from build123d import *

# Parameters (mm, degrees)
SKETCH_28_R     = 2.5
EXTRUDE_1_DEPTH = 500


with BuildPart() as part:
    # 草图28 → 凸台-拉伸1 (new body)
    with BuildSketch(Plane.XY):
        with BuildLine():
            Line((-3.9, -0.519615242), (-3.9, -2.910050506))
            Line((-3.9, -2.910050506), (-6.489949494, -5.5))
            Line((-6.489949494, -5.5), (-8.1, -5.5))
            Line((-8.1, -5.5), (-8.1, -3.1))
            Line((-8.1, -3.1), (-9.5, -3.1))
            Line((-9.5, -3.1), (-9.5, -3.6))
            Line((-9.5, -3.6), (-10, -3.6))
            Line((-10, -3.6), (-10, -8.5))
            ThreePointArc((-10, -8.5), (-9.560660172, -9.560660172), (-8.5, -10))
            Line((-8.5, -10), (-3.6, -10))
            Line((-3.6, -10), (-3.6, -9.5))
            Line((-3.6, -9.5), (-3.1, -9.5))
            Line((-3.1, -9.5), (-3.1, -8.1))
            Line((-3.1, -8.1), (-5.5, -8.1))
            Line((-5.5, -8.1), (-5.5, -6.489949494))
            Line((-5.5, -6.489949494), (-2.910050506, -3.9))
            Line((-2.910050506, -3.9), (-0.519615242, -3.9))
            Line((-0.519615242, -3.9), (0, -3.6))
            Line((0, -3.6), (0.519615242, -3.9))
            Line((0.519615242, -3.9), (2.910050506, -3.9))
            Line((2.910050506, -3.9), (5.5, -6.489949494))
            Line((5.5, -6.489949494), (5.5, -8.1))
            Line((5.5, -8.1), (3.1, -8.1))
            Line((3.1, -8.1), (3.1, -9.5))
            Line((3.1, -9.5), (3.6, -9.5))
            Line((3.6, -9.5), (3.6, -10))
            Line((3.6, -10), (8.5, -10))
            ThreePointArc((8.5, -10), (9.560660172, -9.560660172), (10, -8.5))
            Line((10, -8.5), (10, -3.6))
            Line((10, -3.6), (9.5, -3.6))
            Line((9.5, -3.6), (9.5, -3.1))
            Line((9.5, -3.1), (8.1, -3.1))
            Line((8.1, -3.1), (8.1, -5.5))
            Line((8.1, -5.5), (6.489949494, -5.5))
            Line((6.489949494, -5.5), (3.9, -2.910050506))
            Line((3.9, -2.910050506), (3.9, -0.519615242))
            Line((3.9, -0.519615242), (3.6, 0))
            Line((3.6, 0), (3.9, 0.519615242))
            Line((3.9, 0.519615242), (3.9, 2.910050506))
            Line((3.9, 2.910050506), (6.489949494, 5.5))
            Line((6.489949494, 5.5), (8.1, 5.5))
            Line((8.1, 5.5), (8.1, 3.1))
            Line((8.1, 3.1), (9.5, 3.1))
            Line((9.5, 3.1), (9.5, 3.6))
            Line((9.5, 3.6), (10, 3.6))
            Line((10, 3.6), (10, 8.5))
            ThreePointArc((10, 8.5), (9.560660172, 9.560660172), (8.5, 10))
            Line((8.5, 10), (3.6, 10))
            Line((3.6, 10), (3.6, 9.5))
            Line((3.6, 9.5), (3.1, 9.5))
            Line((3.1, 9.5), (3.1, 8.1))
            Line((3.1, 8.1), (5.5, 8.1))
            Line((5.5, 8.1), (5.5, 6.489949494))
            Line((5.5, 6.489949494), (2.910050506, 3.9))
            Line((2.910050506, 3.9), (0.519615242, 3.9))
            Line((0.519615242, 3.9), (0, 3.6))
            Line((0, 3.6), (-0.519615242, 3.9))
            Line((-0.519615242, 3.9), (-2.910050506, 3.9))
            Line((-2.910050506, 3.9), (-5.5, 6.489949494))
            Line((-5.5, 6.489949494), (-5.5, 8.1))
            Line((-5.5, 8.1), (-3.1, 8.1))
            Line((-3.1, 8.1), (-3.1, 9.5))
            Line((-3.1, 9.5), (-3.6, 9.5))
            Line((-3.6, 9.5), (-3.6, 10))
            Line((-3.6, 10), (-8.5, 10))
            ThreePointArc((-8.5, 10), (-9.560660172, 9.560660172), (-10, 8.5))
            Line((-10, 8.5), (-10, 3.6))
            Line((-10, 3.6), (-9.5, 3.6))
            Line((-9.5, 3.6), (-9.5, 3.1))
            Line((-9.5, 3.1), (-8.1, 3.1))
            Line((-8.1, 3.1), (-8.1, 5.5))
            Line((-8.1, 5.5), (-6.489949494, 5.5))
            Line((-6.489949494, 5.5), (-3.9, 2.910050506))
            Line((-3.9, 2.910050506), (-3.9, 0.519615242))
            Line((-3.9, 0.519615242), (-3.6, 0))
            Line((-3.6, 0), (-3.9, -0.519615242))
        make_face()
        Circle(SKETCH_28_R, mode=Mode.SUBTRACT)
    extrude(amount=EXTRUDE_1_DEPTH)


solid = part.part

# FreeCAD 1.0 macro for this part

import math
import FreeCAD as App
import Part
import Sketcher

V = App.Vector
Q = App.Units.Quantity

doc = App.newDocument("Part")
body = doc.addObject("PartDesign::Body", "Body")

sketch1 = body.newObject("Sketcher::SketchObject", "Sketch")
sketch1.AttachmentSupport = (doc.getObject("XY_Plane"), [""])
sketch1.MapMode = "FlatFace"
sketch1.addGeometry([
    Part.LineSegment(V(-3.9, -0.5, 0), V(-3.9, -2.9, 0)),
    Part.LineSegment(V(-3.9, -2.9, 0), V(-6.5, -5.5, 0)),
    Part.LineSegment(V(-6.5, -5.5, 0), V(-8.1, -5.5, 0)),
    Part.LineSegment(V(-8.1, -5.5, 0), V(-8.1, -3.1, 0)),
    Part.LineSegment(V(-8.1, -3.1, 0), V(-9.5, -3.1, 0)),
    Part.LineSegment(V(-9.5, -3.1, 0), V(-9.5, -3.6, 0)),
    Part.LineSegment(V(-9.5, -3.6, 0), V(-10, -3.6, 0)),
    Part.LineSegment(V(-10, -3.6, 0), V(-10, -8.5, 0)),
    Part.ArcOfCircle(Part.Circle(V(-8.5, -8.5, 0), V(0, 0, 1), 1.5), math.radians(180), math.radians(270)),
    Part.LineSegment(V(-8.5, -10, 0), V(-3.6, -10, 0)),
    Part.LineSegment(V(-3.6, -10, 0), V(-3.6, -9.5, 0)),
    Part.LineSegment(V(-3.6, -9.5, 0), V(-3.1, -9.5, 0)),
    Part.LineSegment(V(-3.1, -9.5, 0), V(-3.1, -8.1, 0)),
    Part.LineSegment(V(-3.1, -8.1, 0), V(-5.5, -8.1, 0)),
    Part.LineSegment(V(-5.5, -8.1, 0), V(-5.5, -6.5, 0)),
    Part.LineSegment(V(-5.5, -6.5, 0), V(-2.9, -3.9, 0)),
    Part.LineSegment(V(-2.9, -3.9, 0), V(-0.5, -3.9, 0)),
    Part.LineSegment(V(-0.5, -3.9, 0), V(0, -3.6, 0)),
    Part.LineSegment(V(0, -3.6, 0), V(0.5, -3.9, 0)),
    Part.LineSegment(V(0.5, -3.9, 0), V(2.9, -3.9, 0)),
    Part.LineSegment(V(2.9, -3.9, 0), V(5.5, -6.5, 0)),
    Part.LineSegment(V(5.5, -6.5, 0), V(5.5, -8.1, 0)),
    Part.LineSegment(V(5.5, -8.1, 0), V(3.1, -8.1, 0)),
    Part.LineSegment(V(3.1, -8.1, 0), V(3.1, -9.5, 0)),
    Part.LineSegment(V(3.1, -9.5, 0), V(3.6, -9.5, 0)),
    Part.LineSegment(V(3.6, -9.5, 0), V(3.6, -10, 0)),
    Part.LineSegment(V(3.6, -10, 0), V(8.5, -10, 0)),
    Part.ArcOfCircle(Part.Circle(V(8.5, -8.5, 0), V(0, 0, 1), 1.5), math.radians(-90), math.radians(0)),
    Part.LineSegment(V(10, -8.5, 0), V(10, -3.6, 0)),
    Part.LineSegment(V(10, -3.6, 0), V(9.5, -3.6, 0)),
    Part.LineSegment(V(9.5, -3.6, 0), V(9.5, -3.1, 0)),
    Part.LineSegment(V(9.5, -3.1, 0), V(8.1, -3.1, 0)),
    Part.LineSegment(V(8.1, -3.1, 0), V(8.1, -5.5, 0)),
    Part.LineSegment(V(8.1, -5.5, 0), V(6.5, -5.5, 0)),
    Part.LineSegment(V(6.5, -5.5, 0), V(3.9, -2.9, 0)),
    Part.LineSegment(V(3.9, -2.9, 0), V(3.9, -0.5, 0)),
    Part.LineSegment(V(3.9, -0.5, 0), V(3.6, 0, 0)),
    Part.LineSegment(V(3.6, 0, 0), V(3.9, 0.5, 0)),
    Part.LineSegment(V(3.9, 0.5, 0), V(3.9, 2.9, 0)),
    Part.LineSegment(V(3.9, 2.9, 0), V(6.5, 5.5, 0)),
    Part.LineSegment(V(6.5, 5.5, 0), V(8.1, 5.5, 0)),
    Part.LineSegment(V(8.1, 5.5, 0), V(8.1, 3.1, 0)),
    Part.LineSegment(V(8.1, 3.1, 0), V(9.5, 3.1, 0)),
    Part.LineSegment(V(9.5, 3.1, 0), V(9.5, 3.6, 0)),
    Part.LineSegment(V(9.5, 3.6, 0), V(10, 3.6, 0)),
    Part.LineSegment(V(10, 3.6, 0), V(10, 8.5, 0)),
    Part.ArcOfCircle(Part.Circle(V(8.5, 8.5, 0), V(0, 0, 1), 1.5), math.radians(0), math.radians(90)),
    Part.LineSegment(V(8.5, 10, 0), V(3.6, 10, 0)),
    Part.LineSegment(V(3.6, 10, 0), V(3.6, 9.5, 0)),
    Part.LineSegment(V(3.6, 9.5, 0), V(3.1, 9.5, 0)),
    Part.LineSegment(V(3.1, 9.5, 0), V(3.1, 8.1, 0)),
    Part.LineSegment(V(3.1, 8.1, 0), V(5.5, 8.1, 0)),
    Part.LineSegment(V(5.5, 8.1, 0), V(5.5, 6.5, 0)),
    Part.LineSegment(V(5.5, 6.5, 0), V(2.9, 3.9, 0)),
    Part.LineSegment(V(2.9, 3.9, 0), V(0.5, 3.9, 0)),
    Part.LineSegment(V(0.5, 3.9, 0), V(0, 3.6, 0)),
    Part.LineSegment(V(0, 3.6, 0), V(-0.5, 3.9, 0)),
    Part.LineSegment(V(-0.5, 3.9, 0), V(-2.9, 3.9, 0)),
    Part.LineSegment(V(-2.9, 3.9, 0), V(-5.5, 6.5, 0)),
    Part.LineSegment(V(-5.5, 6.5, 0), V(-5.5, 8.1, 0)),
    Part.LineSegment(V(-5.5, 8.1, 0), V(-3.1, 8.1, 0)),
    Part.LineSegment(V(-3.1, 8.1, 0), V(-3.1, 9.5, 0)),
    Part.LineSegment(V(-3.1, 9.5, 0), V(-3.6, 9.5, 0)),
    Part.LineSegment(V(-3.6, 9.5, 0), V(-3.6, 10, 0)),
    Part.LineSegment(V(-3.6, 10, 0), V(-8.5, 10, 0)),
    Part.ArcOfCircle(Part.Circle(V(-8.5, 8.5, 0), V(0, 0, 1), 1.5), math.radians(90), math.radians(180)),
    Part.LineSegment(V(-10, 8.5, 0), V(-10, 3.6, 0)),
    Part.LineSegment(V(-10, 3.6, 0), V(-9.5, 3.6, 0)),
    Part.LineSegment(V(-9.5, 3.6, 0), V(-9.5, 3.1, 0)),
    Part.LineSegment(V(-9.5, 3.1, 0), V(-8.1, 3.1, 0)),
    Part.LineSegment(V(-8.1, 3.1, 0), V(-8.1, 5.5, 0)),
    Part.LineSegment(V(-8.1, 5.5, 0), V(-6.5, 5.5, 0)),
    Part.LineSegment(V(-6.5, 5.5, 0), V(-3.9, 2.9, 0)),
    Part.LineSegment(V(-3.9, 2.9, 0), V(-3.9, 0.5, 0)),
    Part.LineSegment(V(-3.9, 0.5, 0), V(-3.6, 0, 0)),
    Part.LineSegment(V(-3.6, 0, 0), V(-3.9, -0.5, 0)),
    Part.Circle(V(0, 0, 0), V(0, 0, 1), 2.5),
], False)
sketch1.addConstraint([
    Sketcher.Constraint("Coincident", 0, 2, 1, 1),
    Sketcher.Constraint("Coincident", 1, 2, 2, 1),
    Sketcher.Constraint("Coincident", 2, 2, 3, 1),
    Sketcher.Constraint("Coincident", 3, 2, 4, 1),
    Sketcher.Constraint("Coincident", 4, 2, 5, 1),
    Sketcher.Constraint("Coincident", 5, 2, 6, 1),
    Sketcher.Constraint("Coincident", 6, 2, 7, 1),
    Sketcher.Constraint("Tangent", 7, 2, 8, 1),
    Sketcher.Constraint("Tangent", 8, 2, 9, 1),
    Sketcher.Constraint("Coincident", 9, 2, 10, 1),
    Sketcher.Constraint("Coincident", 10, 2, 11, 1),
    Sketcher.Constraint("Coincident", 11, 2, 12, 1),
    Sketcher.Constraint("Coincident", 12, 2, 13, 1),
    Sketcher.Constraint("Coincident", 13, 2, 14, 1),
    Sketcher.Constraint("Coincident", 14, 2, 15, 1),
    Sketcher.Constraint("Coincident", 15, 2, 16, 1),
    Sketcher.Constraint("Coincident", 16, 2, 17, 1),
    Sketcher.Constraint("Coincident", 17, 2, 18, 1),
    Sketcher.Constraint("Coincident", 18, 2, 19, 1),
    Sketcher.Constraint("Coincident", 19, 2, 20, 1),
    Sketcher.Constraint("Coincident", 20, 2, 21, 1),
    Sketcher.Constraint("Coincident", 21, 2, 22, 1),
    Sketcher.Constraint("Coincident", 22, 2, 23, 1),
    Sketcher.Constraint("Coincident", 23, 2, 24, 1),
    Sketcher.Constraint("Coincident", 24, 2, 25, 1),
    Sketcher.Constraint("Coincident", 25, 2, 26, 1),
    Sketcher.Constraint("Tangent", 26, 2, 27, 1),
    Sketcher.Constraint("Tangent", 27, 2, 28, 1),
    Sketcher.Constraint("Coincident", 28, 2, 29, 1),
    Sketcher.Constraint("Coincident", 29, 2, 30, 1),
    Sketcher.Constraint("Coincident", 30, 2, 31, 1),
    Sketcher.Constraint("Coincident", 31, 2, 32, 1),
    Sketcher.Constraint("Coincident", 32, 2, 33, 1),
    Sketcher.Constraint("Coincident", 33, 2, 34, 1),
    Sketcher.Constraint("Coincident", 34, 2, 35, 1),
    Sketcher.Constraint("Coincident", 35, 2, 36, 1),
    Sketcher.Constraint("Coincident", 36, 2, 37, 1),
    Sketcher.Constraint("Coincident", 37, 2, 38, 1),
    Sketcher.Constraint("Coincident", 38, 2, 39, 1),
    Sketcher.Constraint("Coincident", 39, 2, 40, 1),
    Sketcher.Constraint("Coincident", 40, 2, 41, 1),
    Sketcher.Constraint("Coincident", 41, 2, 42, 1),
    Sketcher.Constraint("Coincident", 42, 2, 43, 1),
    Sketcher.Constraint("Coincident", 43, 2, 44, 1),
    Sketcher.Constraint("Coincident", 44, 2, 45, 1),
    Sketcher.Constraint("Tangent", 45, 2, 46, 1),
    Sketcher.Constraint("Tangent", 46, 2, 47, 1),
    Sketcher.Constraint("Coincident", 47, 2, 48, 1),
    Sketcher.Constraint("Coincident", 48, 2, 49, 1),
    Sketcher.Constraint("Coincident", 49, 2, 50, 1),
    Sketcher.Constraint("Coincident", 50, 2, 51, 1),
    Sketcher.Constraint("Coincident", 51, 2, 52, 1),
    Sketcher.Constraint("Coincident", 52, 2, 53, 1),
    Sketcher.Constraint("Coincident", 53, 2, 54, 1),
    Sketcher.Constraint("Coincident", 54, 2, 55, 1),
    Sketcher.Constraint("Coincident", 55, 2, 56, 1),
    Sketcher.Constraint("Coincident", 56, 2, 57, 1),
    Sketcher.Constraint("Coincident", 57, 2, 58, 1),
    Sketcher.Constraint("Coincident", 58, 2, 59, 1),
    Sketcher.Constraint("Coincident", 59, 2, 60, 1),
    Sketcher.Constraint("Coincident", 60, 2, 61, 1),
    Sketcher.Constraint("Coincident", 61, 2, 62, 1),
    Sketcher.Constraint("Coincident", 62, 2, 63, 1),
    Sketcher.Constraint("Coincident", 63, 2, 64, 1),
    Sketcher.Constraint("Tangent", 64, 2, 65, 1),
    Sketcher.Constraint("Tangent", 65, 2, 66, 1),
    Sketcher.Constraint("Coincident", 66, 2, 67, 1),
    Sketcher.Constraint("Coincident", 67, 2, 68, 1),
    Sketcher.Constraint("Coincident", 68, 2, 69, 1),
    Sketcher.Constraint("Coincident", 69, 2, 70, 1),
    Sketcher.Constraint("Coincident", 70, 2, 71, 1),
    Sketcher.Constraint("Coincident", 71, 2, 72, 1),
    Sketcher.Constraint("Coincident", 72, 2, 73, 1),
    Sketcher.Constraint("Coincident", 73, 2, 74, 1),
    Sketcher.Constraint("Coincident", 74, 2, 75, 1),
    Sketcher.Constraint("Coincident", 75, 2, 0, 1),
    Sketcher.Constraint("Vertical", 0),
    Sketcher.Constraint("Horizontal", 2),
    Sketcher.Constraint("Vertical", 3),
    Sketcher.Constraint("Horizontal", 4),
    Sketcher.Constraint("Vertical", 5),
    Sketcher.Constraint("Horizontal", 6),
    Sketcher.Constraint("Vertical", 7),
    Sketcher.Constraint("Horizontal", 9),
    Sketcher.Constraint("Vertical", 10),
    Sketcher.Constraint("Horizontal", 11),
    Sketcher.Constraint("Vertical", 12),
    Sketcher.Constraint("Horizontal", 13),
    Sketcher.Constraint("Vertical", 14),
    Sketcher.Constraint("Horizontal", 16),
    Sketcher.Constraint("Horizontal", 19),
    Sketcher.Constraint("Vertical", 21),
    Sketcher.Constraint("Horizontal", 22),
    Sketcher.Constraint("Vertical", 23),
    Sketcher.Constraint("Horizontal", 24),
    Sketcher.Constraint("Vertical", 25),
    Sketcher.Constraint("Horizontal", 26),
    Sketcher.Constraint("Vertical", 28),
    Sketcher.Constraint("Horizontal", 29),
    Sketcher.Constraint("Vertical", 30),
    Sketcher.Constraint("Horizontal", 31),
    Sketcher.Constraint("Vertical", 32),
    Sketcher.Constraint("Horizontal", 33),
    Sketcher.Constraint("Vertical", 35),
    Sketcher.Constraint("Vertical", 38),
    Sketcher.Constraint("Horizontal", 40),
    Sketcher.Constraint("Vertical", 41),
    Sketcher.Constraint("Horizontal", 42),
    Sketcher.Constraint("Vertical", 43),
    Sketcher.Constraint("Horizontal", 44),
    Sketcher.Constraint("Vertical", 45),
    Sketcher.Constraint("Horizontal", 47),
    Sketcher.Constraint("Vertical", 48),
    Sketcher.Constraint("Horizontal", 49),
    Sketcher.Constraint("Vertical", 50),
    Sketcher.Constraint("Horizontal", 51),
    Sketcher.Constraint("Vertical", 52),
    Sketcher.Constraint("Horizontal", 54),
    Sketcher.Constraint("Horizontal", 57),
    Sketcher.Constraint("Vertical", 59),
    Sketcher.Constraint("Horizontal", 60),
    Sketcher.Constraint("Vertical", 61),
    Sketcher.Constraint("Horizontal", 62),
    Sketcher.Constraint("Vertical", 63),
    Sketcher.Constraint("Horizontal", 64),
    Sketcher.Constraint("Vertical", 66),
    Sketcher.Constraint("Horizontal", 67),
    Sketcher.Constraint("Vertical", 68),
    Sketcher.Constraint("Horizontal", 69),
    Sketcher.Constraint("Vertical", 70),
    Sketcher.Constraint("Horizontal", 71),
    Sketcher.Constraint("Vertical", 73),
    Sketcher.Constraint("Coincident", 76, 3, -1, 1),
    Sketcher.Constraint("Equal", 8, 27),
    Sketcher.Constraint("Equal", 27, 46),
    Sketcher.Constraint("Equal", 46, 65),
    Sketcher.Constraint("Symmetric", 8, 3, 46, 3, -1, 1),
    Sketcher.Constraint("Symmetric", 27, 3, 65, 3, -1, 1),
    Sketcher.Constraint("Symmetric", 0, 2, 38, 2, -1, 1),
    Sketcher.Constraint("Symmetric", 1, 2, 39, 2, -1, 1),
    Sketcher.Constraint("Symmetric", 3, 2, 41, 2, -1, 1),
    Sketcher.Constraint("Symmetric", 5, 2, 43, 2, -1, 1),
    Sketcher.Constraint("Symmetric", 10, 2, 48, 2, -1, 1),
    Sketcher.Constraint("Symmetric", 12, 2, 50, 2, -1, 1),
    Sketcher.Constraint("Symmetric", 14, 2, 52, 2, -1, 1),
    Sketcher.Constraint("Symmetric", 15, 2, 53, 2, -1, 1),
    Sketcher.Constraint("Symmetric", 17, 2, 55, 2, -1, 1),
    Sketcher.Constraint("Symmetric", 18, 2, 56, 2, -1, 1),
    Sketcher.Constraint("Symmetric", 20, 2, 58, 2, -1, 1),
    Sketcher.Constraint("Symmetric", 22, 2, 60, 2, -1, 1),
    Sketcher.Constraint("Symmetric", 24, 2, 62, 2, -1, 1),
    Sketcher.Constraint("Symmetric", 29, 2, 67, 2, -1, 1),
    Sketcher.Constraint("Symmetric", 31, 2, 69, 2, -1, 1),
    Sketcher.Constraint("Symmetric", 33, 2, 71, 2, -1, 1),
    Sketcher.Constraint("Symmetric", 34, 2, 72, 2, -1, 1),
    Sketcher.Constraint("Symmetric", 36, 2, 74, 2, -1, 1),
    Sketcher.Constraint("Symmetric", 8, 3, 27, 3, -2),
    Sketcher.Constraint("Symmetric", 16, 2, 18, 2, -2),
    Sketcher.Constraint("Symmetric", 14, 2, 20, 2, -2),
    Sketcher.Constraint("Symmetric", 12, 2, 22, 2, -2),
    Sketcher.Constraint("Symmetric", 10, 2, 24, 2, -2),
    Sketcher.Constraint("Symmetric", 5, 2, 29, 2, -2),
    Sketcher.Constraint("Symmetric", 3, 2, 31, 2, -2),
    Sketcher.Constraint("Symmetric", 1, 2, 33, 2, -2),
    Sketcher.Constraint("Symmetric", 0, 2, 34, 2, -2),
    Sketcher.Constraint("PointOnObject", 17, 2, -2),
    Sketcher.Constraint("PointOnObject", 36, 2, -1),
    Sketcher.Constraint("Parallel", 1, 15),
    Sketcher.Constraint("Perpendicular", 15, 20),
    Sketcher.Constraint("Parallel", 20, 34),
    Sketcher.Constraint("Perpendicular", 17, 36),
    Sketcher.Constraint("Perpendicular", 18, 37),
    Sketcher.Constraint("Perpendicular", 36, 55),
    Sketcher.Constraint("Perpendicular", 53, 58),
    Sketcher.Constraint("Perpendicular", 55, 74),
    Sketcher.Constraint("Perpendicular", 56, 75),
    Sketcher.Constraint("Horizontal", 6, 2, 17, 2),
    Sketcher.Constraint("Vertical", 25, 2, 36, 2),
    Sketcher.Constraint("Equal", 6, 11),
    Sketcher.Constraint("Equal", 57, 0),
    Sketcher.Constraint("Equal", 60, 3),
    Sketcher.Constraint("Equal", 67, 5),
    Sketcher.Constraint("Equal", 64, 7),
    Sketcher.Constraint("Equal", 5, 10),
    Sketcher.Constraint("Equal", 69, 12),
    Sketcher.Constraint("Equal", 71, 14),
    Sketcher.Constraint("Equal", 1, 15),
    Sketcher.Constraint("Diameter", 76, Q("5 mm")),
    Sketcher.Constraint("Radius", 8, Q("1.5 mm")),
    Sketcher.Constraint("Angle", 17, Q("30 deg")),
    Sketcher.Constraint("DistanceX", 4, 2, 4, 1, Q("1.4 mm")),
    Sketcher.Constraint("DistanceX", 6, 2, 6, 1, Q("0.5 mm")),
    Sketcher.Constraint("DistanceX", 9, 1, 9, 2, Q("4.9 mm")),
    Sketcher.Constraint("DistanceX", 13, 2, 13, 1, Q("2.4 mm")),
    Sketcher.Constraint("DistanceX", 6, 2, -1, 1, Q("10 mm")),
    Sketcher.Constraint("Distance", 17, Q("0.6 mm")),
    Sketcher.Constraint("DistanceX", 2, 2, 2, 1, Q("1.610051 mm")),
])
pad1 = body.newObject("PartDesign::Pad", "Pad")
pad1.Profile = sketch1
pad1.Length = 500

doc.recompute()
